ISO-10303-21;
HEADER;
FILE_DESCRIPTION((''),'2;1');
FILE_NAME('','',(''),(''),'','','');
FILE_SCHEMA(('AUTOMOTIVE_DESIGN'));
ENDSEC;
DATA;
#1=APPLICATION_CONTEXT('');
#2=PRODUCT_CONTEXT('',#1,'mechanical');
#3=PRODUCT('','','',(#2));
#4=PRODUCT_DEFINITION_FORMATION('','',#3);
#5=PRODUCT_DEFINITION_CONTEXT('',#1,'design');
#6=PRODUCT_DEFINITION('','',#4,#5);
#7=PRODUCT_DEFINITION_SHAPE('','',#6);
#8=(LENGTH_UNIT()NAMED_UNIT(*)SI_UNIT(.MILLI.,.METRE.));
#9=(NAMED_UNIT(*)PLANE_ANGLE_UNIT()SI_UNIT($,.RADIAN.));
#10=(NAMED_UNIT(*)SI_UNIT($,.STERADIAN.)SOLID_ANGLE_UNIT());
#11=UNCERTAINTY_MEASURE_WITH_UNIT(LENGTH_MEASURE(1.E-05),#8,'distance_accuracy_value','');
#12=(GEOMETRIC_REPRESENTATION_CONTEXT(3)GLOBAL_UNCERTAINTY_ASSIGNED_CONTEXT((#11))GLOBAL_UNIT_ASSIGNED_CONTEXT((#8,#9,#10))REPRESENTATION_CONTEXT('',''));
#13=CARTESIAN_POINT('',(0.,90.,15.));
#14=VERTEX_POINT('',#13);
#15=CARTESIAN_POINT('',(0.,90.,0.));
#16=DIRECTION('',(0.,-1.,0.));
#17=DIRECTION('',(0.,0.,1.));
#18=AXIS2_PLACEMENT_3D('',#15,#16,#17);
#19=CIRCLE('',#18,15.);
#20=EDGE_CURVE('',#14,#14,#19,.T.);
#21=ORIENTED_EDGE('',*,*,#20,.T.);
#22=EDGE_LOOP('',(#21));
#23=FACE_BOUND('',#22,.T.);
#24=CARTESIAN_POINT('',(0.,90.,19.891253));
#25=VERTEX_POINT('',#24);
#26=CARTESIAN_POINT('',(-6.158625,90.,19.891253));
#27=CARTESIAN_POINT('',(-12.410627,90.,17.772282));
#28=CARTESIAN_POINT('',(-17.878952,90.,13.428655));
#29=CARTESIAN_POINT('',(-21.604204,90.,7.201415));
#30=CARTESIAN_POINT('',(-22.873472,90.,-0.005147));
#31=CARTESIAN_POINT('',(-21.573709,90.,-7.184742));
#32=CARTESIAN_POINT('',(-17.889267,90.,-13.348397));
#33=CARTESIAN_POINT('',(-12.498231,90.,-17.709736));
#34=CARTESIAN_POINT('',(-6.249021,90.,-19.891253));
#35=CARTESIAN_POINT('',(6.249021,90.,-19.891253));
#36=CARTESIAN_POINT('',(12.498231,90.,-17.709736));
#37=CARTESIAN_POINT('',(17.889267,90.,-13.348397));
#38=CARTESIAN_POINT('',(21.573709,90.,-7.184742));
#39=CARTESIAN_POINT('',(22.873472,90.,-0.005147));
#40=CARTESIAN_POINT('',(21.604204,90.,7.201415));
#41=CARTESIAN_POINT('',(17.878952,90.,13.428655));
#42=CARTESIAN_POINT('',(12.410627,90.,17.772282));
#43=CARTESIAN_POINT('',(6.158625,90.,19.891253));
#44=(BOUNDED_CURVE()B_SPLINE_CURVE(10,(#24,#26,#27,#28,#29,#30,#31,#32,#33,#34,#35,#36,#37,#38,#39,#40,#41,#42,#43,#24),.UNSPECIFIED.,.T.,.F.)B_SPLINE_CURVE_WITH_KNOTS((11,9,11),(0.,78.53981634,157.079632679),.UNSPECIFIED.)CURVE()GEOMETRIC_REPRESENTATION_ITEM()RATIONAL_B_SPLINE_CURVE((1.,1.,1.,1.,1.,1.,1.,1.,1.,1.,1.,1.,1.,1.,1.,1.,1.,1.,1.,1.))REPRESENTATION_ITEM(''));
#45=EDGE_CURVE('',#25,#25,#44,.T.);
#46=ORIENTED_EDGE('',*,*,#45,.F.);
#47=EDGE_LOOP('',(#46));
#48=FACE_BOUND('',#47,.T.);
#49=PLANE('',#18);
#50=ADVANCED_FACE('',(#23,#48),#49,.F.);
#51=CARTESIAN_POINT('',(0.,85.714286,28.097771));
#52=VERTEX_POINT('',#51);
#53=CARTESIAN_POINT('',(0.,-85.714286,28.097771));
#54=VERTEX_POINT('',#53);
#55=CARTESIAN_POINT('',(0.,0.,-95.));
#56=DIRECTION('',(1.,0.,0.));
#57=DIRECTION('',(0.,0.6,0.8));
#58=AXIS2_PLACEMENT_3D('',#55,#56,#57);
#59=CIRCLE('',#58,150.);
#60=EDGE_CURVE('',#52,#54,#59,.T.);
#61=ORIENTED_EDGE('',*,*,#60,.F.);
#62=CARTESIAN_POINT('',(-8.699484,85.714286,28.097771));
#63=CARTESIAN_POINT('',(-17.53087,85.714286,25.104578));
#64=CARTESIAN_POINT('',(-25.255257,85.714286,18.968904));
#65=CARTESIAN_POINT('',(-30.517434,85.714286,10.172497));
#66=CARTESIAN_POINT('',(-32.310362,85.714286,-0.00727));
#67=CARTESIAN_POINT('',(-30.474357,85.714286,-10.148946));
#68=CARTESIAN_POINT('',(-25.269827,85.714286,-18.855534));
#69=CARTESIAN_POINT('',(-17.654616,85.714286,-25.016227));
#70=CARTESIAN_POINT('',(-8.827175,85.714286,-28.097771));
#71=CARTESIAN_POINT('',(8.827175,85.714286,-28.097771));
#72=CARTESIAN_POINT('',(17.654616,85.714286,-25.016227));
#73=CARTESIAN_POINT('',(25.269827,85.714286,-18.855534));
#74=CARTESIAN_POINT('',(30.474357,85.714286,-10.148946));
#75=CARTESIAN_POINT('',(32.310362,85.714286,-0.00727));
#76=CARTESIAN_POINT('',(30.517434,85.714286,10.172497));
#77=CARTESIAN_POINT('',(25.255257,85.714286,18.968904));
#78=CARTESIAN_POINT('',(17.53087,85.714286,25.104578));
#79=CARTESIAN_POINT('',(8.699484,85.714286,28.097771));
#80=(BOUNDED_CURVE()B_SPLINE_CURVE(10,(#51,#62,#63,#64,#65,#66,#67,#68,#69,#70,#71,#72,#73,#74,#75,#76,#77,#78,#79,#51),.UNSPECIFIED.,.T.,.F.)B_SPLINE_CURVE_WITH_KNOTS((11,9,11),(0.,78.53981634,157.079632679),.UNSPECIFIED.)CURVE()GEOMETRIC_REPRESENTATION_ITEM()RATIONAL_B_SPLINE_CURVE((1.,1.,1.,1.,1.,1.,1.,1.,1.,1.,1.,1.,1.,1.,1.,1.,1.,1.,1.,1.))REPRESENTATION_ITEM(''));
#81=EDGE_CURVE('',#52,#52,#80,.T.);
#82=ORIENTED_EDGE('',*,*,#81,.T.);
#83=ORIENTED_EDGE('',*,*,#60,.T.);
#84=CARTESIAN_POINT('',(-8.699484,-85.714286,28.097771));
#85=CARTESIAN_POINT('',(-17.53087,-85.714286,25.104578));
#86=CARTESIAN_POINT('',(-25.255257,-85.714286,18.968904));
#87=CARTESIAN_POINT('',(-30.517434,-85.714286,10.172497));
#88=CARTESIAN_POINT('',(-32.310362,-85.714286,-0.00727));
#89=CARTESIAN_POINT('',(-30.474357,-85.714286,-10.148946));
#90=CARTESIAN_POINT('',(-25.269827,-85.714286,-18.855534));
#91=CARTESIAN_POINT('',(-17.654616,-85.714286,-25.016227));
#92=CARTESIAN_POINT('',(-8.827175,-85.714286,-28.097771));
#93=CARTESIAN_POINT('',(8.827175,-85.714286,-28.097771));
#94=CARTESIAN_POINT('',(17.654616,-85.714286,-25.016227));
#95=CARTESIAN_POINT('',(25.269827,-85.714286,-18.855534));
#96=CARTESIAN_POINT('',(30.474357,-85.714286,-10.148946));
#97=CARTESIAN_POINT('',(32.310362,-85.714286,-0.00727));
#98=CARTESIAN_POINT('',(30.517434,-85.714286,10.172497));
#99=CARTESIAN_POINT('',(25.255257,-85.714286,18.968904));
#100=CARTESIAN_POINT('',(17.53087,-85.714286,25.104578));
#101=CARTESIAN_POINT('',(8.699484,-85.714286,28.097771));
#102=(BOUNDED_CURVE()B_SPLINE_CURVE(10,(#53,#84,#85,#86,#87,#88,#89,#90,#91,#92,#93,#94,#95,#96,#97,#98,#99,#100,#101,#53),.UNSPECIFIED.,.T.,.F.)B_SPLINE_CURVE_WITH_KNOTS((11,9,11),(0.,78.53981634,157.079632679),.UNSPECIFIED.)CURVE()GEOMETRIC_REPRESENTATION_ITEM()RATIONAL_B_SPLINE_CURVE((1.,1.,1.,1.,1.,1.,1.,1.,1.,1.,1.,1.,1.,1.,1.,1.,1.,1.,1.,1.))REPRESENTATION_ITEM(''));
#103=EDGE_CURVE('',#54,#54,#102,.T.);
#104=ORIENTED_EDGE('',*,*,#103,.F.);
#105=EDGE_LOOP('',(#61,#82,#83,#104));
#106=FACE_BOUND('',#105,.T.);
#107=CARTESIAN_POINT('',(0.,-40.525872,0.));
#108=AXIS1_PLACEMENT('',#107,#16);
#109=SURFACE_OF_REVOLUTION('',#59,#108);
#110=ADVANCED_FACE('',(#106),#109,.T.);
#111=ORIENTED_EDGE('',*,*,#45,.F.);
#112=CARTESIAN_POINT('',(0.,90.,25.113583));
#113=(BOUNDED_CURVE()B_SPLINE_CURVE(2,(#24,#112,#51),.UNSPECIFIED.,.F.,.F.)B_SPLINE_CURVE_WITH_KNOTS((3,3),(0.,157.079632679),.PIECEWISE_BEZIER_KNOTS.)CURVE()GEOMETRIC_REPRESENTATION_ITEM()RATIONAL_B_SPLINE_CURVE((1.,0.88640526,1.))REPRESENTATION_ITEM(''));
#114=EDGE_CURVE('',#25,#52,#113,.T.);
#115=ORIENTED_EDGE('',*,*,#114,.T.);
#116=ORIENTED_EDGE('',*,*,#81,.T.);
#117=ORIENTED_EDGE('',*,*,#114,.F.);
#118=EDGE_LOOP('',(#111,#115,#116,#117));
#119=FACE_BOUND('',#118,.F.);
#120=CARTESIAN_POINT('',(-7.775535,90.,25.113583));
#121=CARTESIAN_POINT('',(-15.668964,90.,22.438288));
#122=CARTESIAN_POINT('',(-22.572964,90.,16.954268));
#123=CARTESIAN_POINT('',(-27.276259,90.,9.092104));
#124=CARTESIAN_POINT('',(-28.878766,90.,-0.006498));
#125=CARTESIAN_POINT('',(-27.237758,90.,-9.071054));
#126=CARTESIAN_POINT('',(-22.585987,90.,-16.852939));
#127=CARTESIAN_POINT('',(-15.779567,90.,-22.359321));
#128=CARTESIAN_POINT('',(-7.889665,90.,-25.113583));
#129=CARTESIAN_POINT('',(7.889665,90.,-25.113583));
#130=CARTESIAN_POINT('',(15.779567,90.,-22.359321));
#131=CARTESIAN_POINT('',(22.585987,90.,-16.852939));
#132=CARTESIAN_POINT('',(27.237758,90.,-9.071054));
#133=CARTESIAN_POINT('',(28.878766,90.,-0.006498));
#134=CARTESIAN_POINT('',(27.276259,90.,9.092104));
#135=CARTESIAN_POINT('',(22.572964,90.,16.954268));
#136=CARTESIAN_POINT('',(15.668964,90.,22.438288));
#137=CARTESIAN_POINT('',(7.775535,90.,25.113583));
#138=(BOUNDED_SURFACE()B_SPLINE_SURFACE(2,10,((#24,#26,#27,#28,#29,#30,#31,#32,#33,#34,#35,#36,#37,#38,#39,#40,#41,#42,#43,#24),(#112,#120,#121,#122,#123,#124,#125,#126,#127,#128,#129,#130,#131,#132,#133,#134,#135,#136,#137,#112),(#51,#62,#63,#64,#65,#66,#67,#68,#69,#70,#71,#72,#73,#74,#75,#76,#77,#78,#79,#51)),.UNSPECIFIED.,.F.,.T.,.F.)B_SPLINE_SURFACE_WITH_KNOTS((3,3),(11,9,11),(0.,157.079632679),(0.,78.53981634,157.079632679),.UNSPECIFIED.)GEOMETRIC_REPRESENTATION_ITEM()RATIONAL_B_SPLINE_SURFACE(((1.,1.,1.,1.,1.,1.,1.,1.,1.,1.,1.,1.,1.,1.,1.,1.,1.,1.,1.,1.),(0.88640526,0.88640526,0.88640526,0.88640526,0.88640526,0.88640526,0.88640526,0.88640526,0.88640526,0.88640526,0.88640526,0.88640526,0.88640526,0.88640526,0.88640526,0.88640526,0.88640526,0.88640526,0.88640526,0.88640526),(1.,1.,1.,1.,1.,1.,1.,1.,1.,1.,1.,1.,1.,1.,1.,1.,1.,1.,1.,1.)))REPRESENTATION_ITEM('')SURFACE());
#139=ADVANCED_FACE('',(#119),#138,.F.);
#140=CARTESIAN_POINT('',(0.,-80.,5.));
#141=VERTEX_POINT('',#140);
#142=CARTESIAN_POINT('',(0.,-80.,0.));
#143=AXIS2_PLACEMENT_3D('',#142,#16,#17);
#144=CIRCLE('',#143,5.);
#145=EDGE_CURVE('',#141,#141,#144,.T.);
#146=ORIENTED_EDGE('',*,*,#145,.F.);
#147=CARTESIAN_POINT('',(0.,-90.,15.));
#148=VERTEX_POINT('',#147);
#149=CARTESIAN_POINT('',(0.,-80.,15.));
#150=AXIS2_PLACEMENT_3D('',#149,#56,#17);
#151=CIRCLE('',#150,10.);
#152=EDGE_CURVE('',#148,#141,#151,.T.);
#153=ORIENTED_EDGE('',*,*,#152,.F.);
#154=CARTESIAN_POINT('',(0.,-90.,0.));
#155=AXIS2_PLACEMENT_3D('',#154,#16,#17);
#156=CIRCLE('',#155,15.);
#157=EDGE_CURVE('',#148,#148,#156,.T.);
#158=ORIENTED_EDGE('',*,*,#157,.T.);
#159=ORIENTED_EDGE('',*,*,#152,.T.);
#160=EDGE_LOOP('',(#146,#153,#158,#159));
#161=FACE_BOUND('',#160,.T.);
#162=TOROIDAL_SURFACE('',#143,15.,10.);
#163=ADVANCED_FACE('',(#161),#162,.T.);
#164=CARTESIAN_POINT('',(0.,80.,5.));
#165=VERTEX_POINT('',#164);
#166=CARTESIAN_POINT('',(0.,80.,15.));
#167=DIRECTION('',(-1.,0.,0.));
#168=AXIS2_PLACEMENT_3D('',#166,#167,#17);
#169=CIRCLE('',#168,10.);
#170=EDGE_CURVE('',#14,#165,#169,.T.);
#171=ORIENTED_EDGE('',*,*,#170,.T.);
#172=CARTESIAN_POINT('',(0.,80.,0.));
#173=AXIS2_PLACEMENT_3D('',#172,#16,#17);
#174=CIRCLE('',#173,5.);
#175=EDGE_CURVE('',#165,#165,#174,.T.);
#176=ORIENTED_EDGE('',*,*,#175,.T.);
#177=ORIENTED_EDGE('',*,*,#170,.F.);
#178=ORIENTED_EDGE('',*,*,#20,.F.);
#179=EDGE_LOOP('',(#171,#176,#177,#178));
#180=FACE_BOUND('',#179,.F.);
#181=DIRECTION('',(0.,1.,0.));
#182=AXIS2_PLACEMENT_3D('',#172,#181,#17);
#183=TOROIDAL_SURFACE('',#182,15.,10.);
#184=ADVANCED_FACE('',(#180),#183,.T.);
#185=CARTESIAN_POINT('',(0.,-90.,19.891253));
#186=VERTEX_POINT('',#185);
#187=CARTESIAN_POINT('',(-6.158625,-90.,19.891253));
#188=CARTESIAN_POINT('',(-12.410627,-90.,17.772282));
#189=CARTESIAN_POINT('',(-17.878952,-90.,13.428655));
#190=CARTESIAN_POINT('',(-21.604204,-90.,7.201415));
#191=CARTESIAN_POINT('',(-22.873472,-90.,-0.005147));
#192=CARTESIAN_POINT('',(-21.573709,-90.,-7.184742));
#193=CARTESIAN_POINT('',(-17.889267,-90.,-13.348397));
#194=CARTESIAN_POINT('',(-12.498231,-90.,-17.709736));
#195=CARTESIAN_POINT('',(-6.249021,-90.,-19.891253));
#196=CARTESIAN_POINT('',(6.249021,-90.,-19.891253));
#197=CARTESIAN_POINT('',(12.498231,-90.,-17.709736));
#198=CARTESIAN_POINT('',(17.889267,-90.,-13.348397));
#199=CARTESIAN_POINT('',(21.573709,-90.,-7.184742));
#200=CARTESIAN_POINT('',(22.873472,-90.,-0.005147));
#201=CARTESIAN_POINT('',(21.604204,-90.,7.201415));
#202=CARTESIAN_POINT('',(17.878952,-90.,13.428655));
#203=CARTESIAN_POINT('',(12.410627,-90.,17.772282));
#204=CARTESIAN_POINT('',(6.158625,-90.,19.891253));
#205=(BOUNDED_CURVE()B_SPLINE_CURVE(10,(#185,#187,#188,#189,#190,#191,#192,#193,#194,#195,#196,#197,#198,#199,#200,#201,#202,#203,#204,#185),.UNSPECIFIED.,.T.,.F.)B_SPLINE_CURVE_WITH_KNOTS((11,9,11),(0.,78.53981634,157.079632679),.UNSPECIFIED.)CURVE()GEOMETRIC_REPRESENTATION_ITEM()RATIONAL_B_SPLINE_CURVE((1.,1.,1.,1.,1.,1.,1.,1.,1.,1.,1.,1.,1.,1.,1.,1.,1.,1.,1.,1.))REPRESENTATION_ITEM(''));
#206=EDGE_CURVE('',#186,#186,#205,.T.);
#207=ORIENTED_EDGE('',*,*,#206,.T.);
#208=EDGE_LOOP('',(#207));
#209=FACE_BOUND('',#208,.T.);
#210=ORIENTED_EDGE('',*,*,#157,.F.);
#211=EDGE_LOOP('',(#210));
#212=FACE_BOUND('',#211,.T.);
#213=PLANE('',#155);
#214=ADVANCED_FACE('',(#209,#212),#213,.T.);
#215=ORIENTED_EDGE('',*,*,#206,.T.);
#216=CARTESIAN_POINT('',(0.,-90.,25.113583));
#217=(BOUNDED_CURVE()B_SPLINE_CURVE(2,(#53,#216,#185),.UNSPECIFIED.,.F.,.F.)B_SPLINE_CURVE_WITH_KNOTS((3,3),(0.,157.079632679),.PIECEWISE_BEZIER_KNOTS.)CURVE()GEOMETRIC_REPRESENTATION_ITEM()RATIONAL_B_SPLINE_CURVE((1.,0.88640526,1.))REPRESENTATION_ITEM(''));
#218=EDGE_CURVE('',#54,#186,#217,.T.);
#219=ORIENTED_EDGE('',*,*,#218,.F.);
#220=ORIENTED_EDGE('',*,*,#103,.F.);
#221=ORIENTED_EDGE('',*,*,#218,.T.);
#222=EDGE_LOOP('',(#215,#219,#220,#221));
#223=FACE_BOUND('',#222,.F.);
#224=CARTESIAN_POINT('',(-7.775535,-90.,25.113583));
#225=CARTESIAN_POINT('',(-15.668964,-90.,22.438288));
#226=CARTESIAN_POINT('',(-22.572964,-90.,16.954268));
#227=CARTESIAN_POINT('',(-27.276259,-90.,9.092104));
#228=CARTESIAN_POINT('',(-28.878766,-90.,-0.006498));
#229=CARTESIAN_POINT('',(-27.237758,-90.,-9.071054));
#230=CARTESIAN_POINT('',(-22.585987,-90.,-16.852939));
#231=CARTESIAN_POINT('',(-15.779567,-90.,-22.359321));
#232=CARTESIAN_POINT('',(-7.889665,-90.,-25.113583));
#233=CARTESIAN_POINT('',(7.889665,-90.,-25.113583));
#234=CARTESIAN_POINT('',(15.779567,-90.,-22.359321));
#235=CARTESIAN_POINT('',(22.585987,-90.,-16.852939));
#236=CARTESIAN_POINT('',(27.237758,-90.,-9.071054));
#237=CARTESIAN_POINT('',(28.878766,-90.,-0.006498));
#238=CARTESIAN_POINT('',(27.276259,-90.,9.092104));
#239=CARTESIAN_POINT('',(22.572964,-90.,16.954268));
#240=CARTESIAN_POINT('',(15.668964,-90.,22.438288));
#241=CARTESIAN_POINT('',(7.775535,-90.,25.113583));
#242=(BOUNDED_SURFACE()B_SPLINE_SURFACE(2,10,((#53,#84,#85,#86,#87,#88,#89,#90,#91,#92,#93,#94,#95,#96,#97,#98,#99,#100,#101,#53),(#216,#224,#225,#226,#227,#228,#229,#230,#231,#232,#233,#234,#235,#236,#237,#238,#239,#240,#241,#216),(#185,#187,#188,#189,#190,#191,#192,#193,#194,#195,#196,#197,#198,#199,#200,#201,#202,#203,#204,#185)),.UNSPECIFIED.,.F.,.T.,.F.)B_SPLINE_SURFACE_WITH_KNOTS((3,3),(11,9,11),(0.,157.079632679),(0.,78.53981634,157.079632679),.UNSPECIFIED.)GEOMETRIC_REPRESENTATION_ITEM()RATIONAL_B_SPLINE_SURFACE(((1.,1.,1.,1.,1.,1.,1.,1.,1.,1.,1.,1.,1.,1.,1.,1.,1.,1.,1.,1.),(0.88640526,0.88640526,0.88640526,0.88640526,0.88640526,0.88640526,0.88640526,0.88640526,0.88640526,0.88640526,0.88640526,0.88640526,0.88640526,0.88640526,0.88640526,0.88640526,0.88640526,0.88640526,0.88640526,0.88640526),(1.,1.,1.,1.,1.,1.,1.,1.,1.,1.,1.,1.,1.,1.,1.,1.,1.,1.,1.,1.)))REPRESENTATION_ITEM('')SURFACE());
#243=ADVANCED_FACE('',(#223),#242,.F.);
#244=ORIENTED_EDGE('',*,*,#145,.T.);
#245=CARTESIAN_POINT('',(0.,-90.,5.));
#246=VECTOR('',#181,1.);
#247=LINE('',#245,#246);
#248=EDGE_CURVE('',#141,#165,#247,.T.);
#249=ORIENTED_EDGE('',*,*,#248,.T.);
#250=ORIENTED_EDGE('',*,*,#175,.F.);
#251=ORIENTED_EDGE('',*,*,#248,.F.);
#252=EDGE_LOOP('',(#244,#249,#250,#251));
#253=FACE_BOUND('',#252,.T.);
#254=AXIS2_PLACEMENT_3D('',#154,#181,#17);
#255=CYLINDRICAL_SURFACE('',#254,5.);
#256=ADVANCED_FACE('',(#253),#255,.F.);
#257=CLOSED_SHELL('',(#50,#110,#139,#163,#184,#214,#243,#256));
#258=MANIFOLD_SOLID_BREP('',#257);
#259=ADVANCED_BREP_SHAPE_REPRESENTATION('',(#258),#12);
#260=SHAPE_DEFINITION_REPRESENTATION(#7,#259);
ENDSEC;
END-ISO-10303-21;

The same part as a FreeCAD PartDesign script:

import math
import FreeCAD as App
import Part
import Sketcher

V = App.Vector


def edges_at(feature, points):
    """Names of the edges that pass closest to the given points."""
    edges = feature.Shape.Edges
    near = lambda p: min(range(len(edges)), key=lambda i: edges[i].distToShape(Part.Vertex(*p))[0])
    return sorted({f"Edge{near(p) + 1}" for p in points})

doc = App.newDocument("Part")
body = doc.addObject("PartDesign::Body", "Body")

# Sketch on YZ plane
sketch1 = body.newObject("Sketcher::SketchObject", "Sketch")
sketch1.AttachmentSupport = (doc.getObject("YZ_Plane"), [""])
sketch1.MapMode = "FlatFace"
sketch1.addGeometry([
    Part.LineSegment(V(90, 5, 0), V(90, 25, 0)),
    Part.ArcOfCircle(Part.Circle(V(0, -95, 0), V(0, 0, 1), 150), math.radians(53), math.radians(127)),
    Part.LineSegment(V(-90, 25, 0), V(-90, 5, 0)),
    Part.LineSegment(V(-90, 5, 0), V(90, 5, 0)),
], False)
sketch1.addConstraint([
    Sketcher.Constraint("Coincident", 0, 2, 1, 1),
    Sketcher.Constraint("Coincident", 1, 2, 2, 1),
    Sketcher.Constraint("Coincident", 2, 2, 3, 1),
    Sketcher.Constraint("Coincident", 3, 2, 0, 1),
    Sketcher.Constraint("Vertical", 0),
    Sketcher.Constraint("Vertical", 2),
    Sketcher.Constraint("Horizontal", 3),
    Sketcher.Constraint("Symmetric", 0, 2, 1, 2, -2),
    Sketcher.Constraint("Radius", 1, 150.0),
    Sketcher.Constraint("DistanceX", 3, 1, 3, 2, 180.0),
    Sketcher.Constraint("DistanceY", 0, 1, 0, 2, 20.0),
    Sketcher.Constraint("DistanceY", 1, 3, -1, 1, 95.0),
])
revolution = body.newObject("PartDesign::Revolution", "Revolution")
revolution.Profile = sketch1
revolution.ReferenceAxis = (sketch1, ["H_Axis"])
revolution.Angle = 360
doc.recompute()

fillet = body.newObject("PartDesign::Fillet", "Fillet")
fillet.Base = (revolution, edges_at(revolution, [
    (0, -90, -25),
    (0, -90, -5),
    (0, 90, -5),
    (0, 90, -25),
]))
fillet.Radius = 10

doc.recompute()
